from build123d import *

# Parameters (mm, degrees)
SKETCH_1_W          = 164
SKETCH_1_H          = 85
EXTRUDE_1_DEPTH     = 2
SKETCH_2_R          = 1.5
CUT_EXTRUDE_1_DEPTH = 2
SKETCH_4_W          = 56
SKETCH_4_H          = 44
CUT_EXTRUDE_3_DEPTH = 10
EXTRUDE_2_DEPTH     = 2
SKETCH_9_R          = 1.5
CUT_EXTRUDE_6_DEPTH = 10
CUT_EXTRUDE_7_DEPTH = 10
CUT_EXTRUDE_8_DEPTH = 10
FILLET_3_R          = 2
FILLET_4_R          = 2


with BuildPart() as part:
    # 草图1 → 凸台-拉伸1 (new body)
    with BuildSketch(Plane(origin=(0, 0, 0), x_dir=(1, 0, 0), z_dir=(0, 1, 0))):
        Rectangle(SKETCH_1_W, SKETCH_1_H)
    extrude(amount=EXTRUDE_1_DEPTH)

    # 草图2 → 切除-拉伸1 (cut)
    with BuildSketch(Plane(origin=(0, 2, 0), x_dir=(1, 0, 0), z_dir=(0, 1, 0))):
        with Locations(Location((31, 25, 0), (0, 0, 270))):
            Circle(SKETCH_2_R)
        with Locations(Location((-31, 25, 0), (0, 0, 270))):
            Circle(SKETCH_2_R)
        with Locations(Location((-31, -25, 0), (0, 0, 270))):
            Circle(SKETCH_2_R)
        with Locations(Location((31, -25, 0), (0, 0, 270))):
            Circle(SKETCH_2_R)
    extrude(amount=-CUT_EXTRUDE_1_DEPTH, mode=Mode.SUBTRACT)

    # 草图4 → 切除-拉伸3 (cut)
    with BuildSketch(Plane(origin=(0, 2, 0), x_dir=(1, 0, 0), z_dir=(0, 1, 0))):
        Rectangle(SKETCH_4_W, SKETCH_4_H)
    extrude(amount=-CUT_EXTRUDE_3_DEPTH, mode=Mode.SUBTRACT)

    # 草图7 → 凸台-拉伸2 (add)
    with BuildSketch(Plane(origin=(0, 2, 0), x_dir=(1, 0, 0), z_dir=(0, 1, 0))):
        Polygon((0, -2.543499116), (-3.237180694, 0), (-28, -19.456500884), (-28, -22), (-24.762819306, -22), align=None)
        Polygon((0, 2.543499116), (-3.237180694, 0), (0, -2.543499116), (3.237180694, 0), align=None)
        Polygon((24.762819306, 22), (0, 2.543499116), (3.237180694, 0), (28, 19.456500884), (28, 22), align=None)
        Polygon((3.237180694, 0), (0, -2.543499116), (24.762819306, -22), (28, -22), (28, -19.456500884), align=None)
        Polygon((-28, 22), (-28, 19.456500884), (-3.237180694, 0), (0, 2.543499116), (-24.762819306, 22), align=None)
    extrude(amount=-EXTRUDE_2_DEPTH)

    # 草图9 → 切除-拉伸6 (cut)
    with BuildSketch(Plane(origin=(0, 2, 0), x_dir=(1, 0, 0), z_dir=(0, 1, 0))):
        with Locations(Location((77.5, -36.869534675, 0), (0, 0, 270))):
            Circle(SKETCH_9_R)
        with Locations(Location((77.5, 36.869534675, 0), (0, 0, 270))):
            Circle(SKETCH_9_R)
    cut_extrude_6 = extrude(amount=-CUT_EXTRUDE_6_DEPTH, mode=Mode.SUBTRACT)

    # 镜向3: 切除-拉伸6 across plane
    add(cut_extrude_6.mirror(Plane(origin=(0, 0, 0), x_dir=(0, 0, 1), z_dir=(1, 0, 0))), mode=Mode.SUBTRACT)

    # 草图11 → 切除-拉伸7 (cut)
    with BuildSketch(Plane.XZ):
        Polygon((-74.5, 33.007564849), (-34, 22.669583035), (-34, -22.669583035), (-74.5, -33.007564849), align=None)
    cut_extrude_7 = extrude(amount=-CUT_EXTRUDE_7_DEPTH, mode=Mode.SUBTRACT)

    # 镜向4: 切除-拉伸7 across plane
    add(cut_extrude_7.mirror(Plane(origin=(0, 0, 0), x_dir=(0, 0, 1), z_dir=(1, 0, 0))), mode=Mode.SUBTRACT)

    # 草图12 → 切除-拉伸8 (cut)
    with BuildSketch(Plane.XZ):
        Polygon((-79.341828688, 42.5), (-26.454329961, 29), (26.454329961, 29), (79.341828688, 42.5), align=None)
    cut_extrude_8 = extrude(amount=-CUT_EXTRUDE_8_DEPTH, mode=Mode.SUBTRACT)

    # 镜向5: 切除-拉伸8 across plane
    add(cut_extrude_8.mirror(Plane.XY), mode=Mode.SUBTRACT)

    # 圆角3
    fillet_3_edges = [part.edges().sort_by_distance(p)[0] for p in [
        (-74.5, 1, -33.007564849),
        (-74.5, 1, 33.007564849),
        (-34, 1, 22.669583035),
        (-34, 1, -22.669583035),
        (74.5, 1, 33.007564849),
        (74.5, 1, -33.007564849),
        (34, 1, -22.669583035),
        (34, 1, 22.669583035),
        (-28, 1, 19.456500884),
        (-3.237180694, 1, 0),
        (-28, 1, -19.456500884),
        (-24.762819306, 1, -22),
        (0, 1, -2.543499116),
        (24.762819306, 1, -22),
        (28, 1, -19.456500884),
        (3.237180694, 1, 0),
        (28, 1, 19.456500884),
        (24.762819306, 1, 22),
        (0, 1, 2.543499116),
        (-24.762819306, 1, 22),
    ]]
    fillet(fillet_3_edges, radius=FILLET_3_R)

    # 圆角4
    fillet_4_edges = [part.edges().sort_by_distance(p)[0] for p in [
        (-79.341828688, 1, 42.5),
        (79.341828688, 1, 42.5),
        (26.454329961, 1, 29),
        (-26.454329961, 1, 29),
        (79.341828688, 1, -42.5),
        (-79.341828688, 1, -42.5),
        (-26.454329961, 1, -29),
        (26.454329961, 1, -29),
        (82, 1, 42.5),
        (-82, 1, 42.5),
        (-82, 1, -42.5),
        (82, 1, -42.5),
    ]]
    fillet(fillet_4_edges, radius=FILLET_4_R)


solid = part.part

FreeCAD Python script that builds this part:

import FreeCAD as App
import Part
import Sketcher
from FreeCAD import Vector
Q = App.Units.Quantity


def edges_at(feature, points):
    """Names of the edges that pass closest to the given points."""
    edges = feature.Shape.Edges
    near = lambda p: min(range(len(edges)), key=lambda i: edges[i].distToShape(Part.Vertex(*p))[0])
    return sorted({f"Edge{near(p) + 1}" for p in points})


def add_polygon(sketch, points):
    """Adds a closed chain of lines whose ends are joined by coincident constraints."""
    first, n = sketch.GeometryCount, len(points)
    for a, b in zip(points, points[1:] + points[:1]):
        sketch.addGeometry(Part.LineSegment(App.Vector(*a, 0), App.Vector(*b, 0)), False)
    for i in range(n):
        sketch.addConstraint(Sketcher.Constraint("Coincident", first + i, 2, first + (i + 1) % n, 1))

doc = App.newDocument("Part")
params = doc.addObject("Spreadsheet::Sheet", "Params")
for row, (alias, value) in enumerate([
    ("sketch1_width", "164 mm"),
    ("sketch1_height", "85 mm"),
    ("pad1_length", "2 mm"),
    ("sketch2_diameter", "3 mm"),
    ("pocket1_length", "2 mm"),
    ("sketch3_width", "56 mm"),
    ("sketch3_height", "44 mm"),
    ("pocket2_length", "10 mm"),
    ("pad2_length", "2 mm"),
    ("sketch5_diameter", "3 mm"),
    ("pocket3_length", "10 mm"),
    ("pocket4_length", "10 mm"),
    ("pocket5_length", "10 mm"),
    ("fillet_radius", "2 mm"),
    ("fillet2_radius", "2 mm"),
], start=1):
    params.set(f"A{row}", alias)
    params.set(f"B{row}", "=" + value)
    params.setAlias(f"B{row}", alias)

body = doc.addObject("PartDesign::Body", "Body")

# Sketch on XZ plane
sketch1 = body.newObject("Sketcher::SketchObject", "Sketch")
sketch1.AttachmentSupport = (doc.getObject("XZ_Plane"), [""])
sketch1.MapMode = "FlatFace"
add_polygon(sketch1, [(-82, -42), (-82, 42), (82, 42), (82, -42)])  # lines 0-3
sketch1.addConstraint(Sketcher.Constraint("Vertical", 0))
sketch1.addConstraint(Sketcher.Constraint("Horizontal", 1))
sketch1.addConstraint(Sketcher.Constraint("Vertical", 2))
sketch1.addConstraint(Sketcher.Constraint("Horizontal", 3))
sketch1.addConstraint(Sketcher.Constraint("Symmetric", 0, 2, 2, 2, -1, 1))
sketch1.addConstraint(Sketcher.Constraint("DistanceX", 1, 1, 1, 2, Q("164 mm")))
sketch1.addConstraint(Sketcher.Constraint("DistanceY", 0, 1, 0, 2, Q("85 mm")))
sketch1.setExpression("Constraints[9]", "Params.sketch1_width")
sketch1.setExpression("Constraints[10]", "Params.sketch1_height")
pad1 = body.newObject("PartDesign::Pad", "Pad")
pad1.Profile = sketch1
pad1.setExpression("Length", "Params.pad1_length")
pad1.Reversed = True

# Sketch on XZ plane
sketch2 = body.newObject("Sketcher::SketchObject", "Sketch001")
sketch2.AttachmentSupport = (doc.getObject("XZ_Plane"), [""])
sketch2.MapMode = "FlatFace"
sketch2.AttachmentOffset = App.Placement(Vector(0, 0, -2), App.Rotation())
sketch2.addGeometry(Part.Circle(Vector(31, -25, 0), Vector(0, 0, 1), 1.5), False)
sketch2.addGeometry(Part.Circle(Vector(-31, -25, 0), Vector(0, 0, 1), 1.5), False)
sketch2.addGeometry(Part.Circle(Vector(-31, 25, 0), Vector(0, 0, 1), 1.5), False)
sketch2.addGeometry(Part.Circle(Vector(31, 25, 0), Vector(0, 0, 1), 1.5), False)
sketch2.addConstraint(Sketcher.Constraint("Equal", 0, 1))
sketch2.addConstraint(Sketcher.Constraint("Equal", 1, 2))
sketch2.addConstraint(Sketcher.Constraint("Equal", 2, 3))
sketch2.addConstraint(Sketcher.Constraint("Symmetric", 0, 3, 2, 3, -1, 1))
sketch2.addConstraint(Sketcher.Constraint("Symmetric", 1, 3, 3, 3, -1, 1))
sketch2.addConstraint(Sketcher.Constraint("Symmetric", 0, 3, 1, 3, -2))
sketch2.addConstraint(Sketcher.Constraint("Diameter", 0, Q("3 mm")))
sketch2.addConstraint(Sketcher.Constraint("DistanceX", -1, 1, 0, 3, Q("31 mm")))
sketch2.addConstraint(Sketcher.Constraint("DistanceY", 0, 3, -1, 1, Q("25 mm")))
sketch2.setExpression("Constraints[6]", "Params.sketch2_diameter")
pocket1 = body.newObject("PartDesign::Pocket", "Pocket")
pocket1.Profile = sketch2
pocket1.setExpression("Length", "Params.pocket1_length")
pocket1.Reversed = True

# Sketch on XZ plane
sketch3 = body.newObject("Sketcher::SketchObject", "Sketch002")
sketch3.AttachmentSupport = (doc.getObject("XZ_Plane"), [""])
sketch3.MapMode = "FlatFace"
sketch3.AttachmentOffset = App.Placement(Vector(0, 0, -2), App.Rotation())
add_polygon(sketch3, [(-28, -22), (-28, 22), (28, 22), (28, -22)])  # lines 0-3
sketch3.addConstraint(Sketcher.Constraint("Vertical", 0))
sketch3.addConstraint(Sketcher.Constraint("Horizontal", 1))
sketch3.addConstraint(Sketcher.Constraint("Vertical", 2))
sketch3.addConstraint(Sketcher.Constraint("Horizontal", 3))
sketch3.addConstraint(Sketcher.Constraint("Symmetric", 0, 2, 2, 2, -1, 1))
sketch3.addConstraint(Sketcher.Constraint("DistanceX", 1, 1, 1, 2, Q("56 mm")))
sketch3.addConstraint(Sketcher.Constraint("DistanceY", 0, 1, 0, 2, Q("44 mm")))
sketch3.setExpression("Constraints[9]", "Params.sketch3_width")
sketch3.setExpression("Constraints[10]", "Params.sketch3_height")
pocket2 = body.newObject("PartDesign::Pocket", "Pocket001")
pocket2.Profile = sketch3
pocket2.setExpression("Length", "Params.pocket2_length")
pocket2.Reversed = True

# Sketch on XZ plane
sketch4 = body.newObject("Sketcher::SketchObject", "Sketch003")
sketch4.AttachmentSupport = (doc.getObject("XZ_Plane"), [""])
sketch4.MapMode = "FlatFace"
sketch4.AttachmentOffset = App.Placement(Vector(0, 0, -2), App.Rotation())
add_polygon(sketch4, [(-3.2, 0), (-28, 19.5), (-28, 22), (-24.8, 22), (0, 2.5), (24.8, 22), (28, 22), (28, 19.5), (3.2, 0), (28, -19.5), (28, -22), (24.8, -22), (0, -2.5), (-24.8, -22), (-28, -22), (-28, -19.5)])  # lines 0-15
sketch4.addConstraint(Sketcher.Constraint("Vertical", 1))
sketch4.addConstraint(Sketcher.Constraint("Horizontal", 2))
sketch4.addConstraint(Sketcher.Constraint("Horizontal", 5))
sketch4.addConstraint(Sketcher.Constraint("Vertical", 6))
sketch4.addConstraint(Sketcher.Constraint("Vertical", 9))
sketch4.addConstraint(Sketcher.Constraint("Horizontal", 10))
sketch4.addConstraint(Sketcher.Constraint("Horizontal", 13))
sketch4.addConstraint(Sketcher.Constraint("Vertical", 14))
sketch4.addConstraint(Sketcher.Constraint("Symmetric", 0, 2, 8, 2, -1, 1))
sketch4.addConstraint(Sketcher.Constraint("Symmetric", 2, 2, 10, 2, -1, 1))
sketch4.addConstraint(Sketcher.Constraint("Symmetric", 3, 2, 11, 2, -1, 1))
sketch4.addConstraint(Sketcher.Constraint("Symmetric", 4, 2, 12, 2, -1, 1))
sketch4.addConstraint(Sketcher.Constraint("Symmetric", 6, 2, 14, 2, -1, 1))
sketch4.addConstraint(Sketcher.Constraint("Symmetric", 7, 2, 15, 2, -1, 1))
sketch4.addConstraint(Sketcher.Constraint("Symmetric", 2, 2, 4, 2, -2))
sketch4.addConstraint(Sketcher.Constraint("Symmetric", 0, 2, 6, 2, -2))
sketch4.addConstraint(Sketcher.Constraint("PointOnObject", 3, 2, -2))
sketch4.addConstraint(Sketcher.Constraint("PointOnObject", 7, 2, -1))
sketch4.addConstraint(Sketcher.Constraint("Parallel", 0, 3))
sketch4.addConstraint(Sketcher.Constraint("Equal", 0, 3))
sketch4.addConstraint(Sketcher.Constraint("DistanceX", 0, 2, -1, 1, Q("28 mm")))
sketch4.addConstraint(Sketcher.Constraint("DistanceY", -1, 1, 1, 2, Q("22 mm")))
sketch4.addConstraint(Sketcher.Constraint("DistanceY", 1, 1, 1, 2, Q("2.543499 mm")))
sketch4.addConstraint(Sketcher.Constraint("DistanceX", 2, 1, 2, 2, Q("3.237181 mm")))
pad2 = body.newObject("PartDesign::Pad", "Pad001")
pad2.Profile = sketch4
pad2.setExpression("Length", "Params.pad2_length")

# Sketch on XZ plane
sketch5 = body.newObject("Sketcher::SketchObject", "Sketch004")
sketch5.AttachmentSupport = (doc.getObject("XZ_Plane"), [""])
sketch5.MapMode = "FlatFace"
sketch5.AttachmentOffset = App.Placement(Vector(0, 0, -2), App.Rotation())
sketch5.addGeometry(Part.Circle(Vector(77.5, 36.9, 0), Vector(0, 0, 1), 1.5), False)
sketch5.addGeometry(Part.Circle(Vector(77.5, -36.9, 0), Vector(0, 0, 1), 1.5), False)
sketch5.addConstraint(Sketcher.Constraint("Equal", 0, 1))
sketch5.addConstraint(Sketcher.Constraint("Symmetric", 0, 3, 1, 3, -1))
sketch5.addConstraint(Sketcher.Constraint("Diameter", 0, Q("3 mm")))
sketch5.addConstraint(Sketcher.Constraint("DistanceX", -1, 1, 0, 3, Q("77.5 mm")))
sketch5.addConstraint(Sketcher.Constraint("DistanceY", 1, 3, 0, 3, Q("73.739069 mm")))
sketch5.setExpression("Constraints[2]", "Params.sketch5_diameter")
pocket3 = body.newObject("PartDesign::Pocket", "Pocket002")
pocket3.Profile = sketch5
pocket3.setExpression("Length", "Params.pocket3_length")
pocket3.Reversed = True
doc.recompute()

mirrored = body.newObject("PartDesign::Mirrored", "Mirrored")
mirrored.Originals = [pocket3]
mirrored.MirrorPlane = (doc.getObject("YZ_Plane"), [""])
body.Tip = mirrored

# Sketch on XZ plane
sketch6 = body.newObject("Sketcher::SketchObject", "Sketch005")
sketch6.AttachmentSupport = (doc.getObject("XZ_Plane"), [""])
sketch6.MapMode = "FlatFace"
add_polygon(sketch6, [(-34, 23), (-74, 33), (-74, -33), (-34, -23)])  # lines 0-3
sketch6.addConstraint(Sketcher.Constraint("Vertical", 1))
sketch6.addConstraint(Sketcher.Constraint("Vertical", 3))
sketch6.addConstraint(Sketcher.Constraint("Equal", 0, 2))
sketch6.addConstraint(Sketcher.Constraint("DistanceX", 2, 2, -1, 1, Q("34 mm")))
sketch6.addConstraint(Sketcher.Constraint("DistanceX", 0, 2, -1, 1, Q("74.5 mm")))
sketch6.addConstraint(Sketcher.Constraint("DistanceY", 1, 2, 1, 1, Q("66.01513 mm")))
sketch6.addConstraint(Sketcher.Constraint("Distance", 0, Q("41.798611 mm")))
sketch6.addConstraint(Sketcher.Constraint("DistanceY", -1, 1, 0, 2, Q("33.007565 mm")))
pocket4 = body.newObject("PartDesign::Pocket", "Pocket003")
pocket4.Profile = sketch6
pocket4.setExpression("Length", "Params.pocket4_length")
doc.recompute()

mirrored2 = body.newObject("PartDesign::Mirrored", "Mirrored001")
mirrored2.Originals = [pocket4]
mirrored2.MirrorPlane = (doc.getObject("YZ_Plane"), [""])
body.Tip = mirrored2

# Sketch on XZ plane
sketch7 = body.newObject("Sketcher::SketchObject", "Sketch006")
sketch7.AttachmentSupport = (doc.getObject("XZ_Plane"), [""])
sketch7.MapMode = "FlatFace"
add_polygon(sketch7, [(-79, 42), (-26, 29), (26, 29), (79, 42)])  # lines 0-3
sketch7.addConstraint(Sketcher.Constraint("Horizontal", 1))
sketch7.addConstraint(Sketcher.Constraint("Horizontal", 3))
sketch7.addConstraint(Sketcher.Constraint("Equal", 0, 2))
sketch7.addConstraint(Sketcher.Constraint("DistanceY", -1, 1, 0, 2, Q("29 mm")))
sketch7.addConstraint(Sketcher.Constraint("DistanceY", -1, 1, 2, 2, Q("42.5 mm")))
sketch7.addConstraint(Sketcher.Constraint("DistanceX", 1, 1, 1, 2, Q("52.90866 mm")))
sketch7.addConstraint(Sketcher.Constraint("DistanceX", 1, 2, 2, 2, Q("52.887499 mm")))
sketch7.addConstraint(Sketcher.Constraint("DistanceX", 0, 2, -1, 1, Q("26.45433 mm")))
pocket5 = body.newObject("PartDesign::Pocket", "Pocket004")
pocket5.Profile = sketch7
pocket5.setExpression("Length", "Params.pocket5_length")
doc.recompute()

mirrored3 = body.newObject("PartDesign::Mirrored", "Mirrored002")
mirrored3.Originals = [pocket5]
mirrored3.MirrorPlane = (doc.getObject("XY_Plane"), [""])
body.Tip = mirrored3
doc.recompute()

fillet = body.newObject("PartDesign::Fillet", "Fillet")
fillet.Base = (mirrored3, edges_at(mirrored3, [
    (-74.5, 1, -33.008),
    (-74.5, 1, 33.008),
    (-34, 1, 22.67),
    (-34, 1, -22.67),
    (74.5, 1, 33.008),
    (74.5, 1, -33.008),
    (34, 1, -22.67),
    (34, 1, 22.67),
    (-28, 1, 19.457),
    (-3.237, 1, 0),
    (-28, 1, -19.457),
    (-24.763, 1, -22),
    (0, 1, -2.543),
    (24.763, 1, -22),
    (28, 1, -19.457),
    (3.237, 1, 0),
    (28, 1, 19.457),
    (24.763, 1, 22),
    (0, 1, 2.543),
    (-24.763, 1, 22),
]))
fillet.setExpression("Radius", "Params.fillet_radius")
doc.recompute()

fillet2 = body.newObject("PartDesign::Fillet", "Fillet001")
fillet2.Base = (fillet, edges_at(fillet, [
    (-79.342, 1, 42.5),
    (79.342, 1, 42.5),
    (26.454, 1, 29),
    (-26.454, 1, 29),
    (79.342, 1, -42.5),
    (-79.342, 1, -42.5),
    (-26.454, 1, -29),
    (26.454, 1, -29),
    (82, 1, 42.5),
    (-82, 1, 42.5),
    (-82, 1, -42.5),
    (82, 1, -42.5),
]))
fillet2.setExpression("Radius", "Params.fillet2_radius")

doc.recompute()
